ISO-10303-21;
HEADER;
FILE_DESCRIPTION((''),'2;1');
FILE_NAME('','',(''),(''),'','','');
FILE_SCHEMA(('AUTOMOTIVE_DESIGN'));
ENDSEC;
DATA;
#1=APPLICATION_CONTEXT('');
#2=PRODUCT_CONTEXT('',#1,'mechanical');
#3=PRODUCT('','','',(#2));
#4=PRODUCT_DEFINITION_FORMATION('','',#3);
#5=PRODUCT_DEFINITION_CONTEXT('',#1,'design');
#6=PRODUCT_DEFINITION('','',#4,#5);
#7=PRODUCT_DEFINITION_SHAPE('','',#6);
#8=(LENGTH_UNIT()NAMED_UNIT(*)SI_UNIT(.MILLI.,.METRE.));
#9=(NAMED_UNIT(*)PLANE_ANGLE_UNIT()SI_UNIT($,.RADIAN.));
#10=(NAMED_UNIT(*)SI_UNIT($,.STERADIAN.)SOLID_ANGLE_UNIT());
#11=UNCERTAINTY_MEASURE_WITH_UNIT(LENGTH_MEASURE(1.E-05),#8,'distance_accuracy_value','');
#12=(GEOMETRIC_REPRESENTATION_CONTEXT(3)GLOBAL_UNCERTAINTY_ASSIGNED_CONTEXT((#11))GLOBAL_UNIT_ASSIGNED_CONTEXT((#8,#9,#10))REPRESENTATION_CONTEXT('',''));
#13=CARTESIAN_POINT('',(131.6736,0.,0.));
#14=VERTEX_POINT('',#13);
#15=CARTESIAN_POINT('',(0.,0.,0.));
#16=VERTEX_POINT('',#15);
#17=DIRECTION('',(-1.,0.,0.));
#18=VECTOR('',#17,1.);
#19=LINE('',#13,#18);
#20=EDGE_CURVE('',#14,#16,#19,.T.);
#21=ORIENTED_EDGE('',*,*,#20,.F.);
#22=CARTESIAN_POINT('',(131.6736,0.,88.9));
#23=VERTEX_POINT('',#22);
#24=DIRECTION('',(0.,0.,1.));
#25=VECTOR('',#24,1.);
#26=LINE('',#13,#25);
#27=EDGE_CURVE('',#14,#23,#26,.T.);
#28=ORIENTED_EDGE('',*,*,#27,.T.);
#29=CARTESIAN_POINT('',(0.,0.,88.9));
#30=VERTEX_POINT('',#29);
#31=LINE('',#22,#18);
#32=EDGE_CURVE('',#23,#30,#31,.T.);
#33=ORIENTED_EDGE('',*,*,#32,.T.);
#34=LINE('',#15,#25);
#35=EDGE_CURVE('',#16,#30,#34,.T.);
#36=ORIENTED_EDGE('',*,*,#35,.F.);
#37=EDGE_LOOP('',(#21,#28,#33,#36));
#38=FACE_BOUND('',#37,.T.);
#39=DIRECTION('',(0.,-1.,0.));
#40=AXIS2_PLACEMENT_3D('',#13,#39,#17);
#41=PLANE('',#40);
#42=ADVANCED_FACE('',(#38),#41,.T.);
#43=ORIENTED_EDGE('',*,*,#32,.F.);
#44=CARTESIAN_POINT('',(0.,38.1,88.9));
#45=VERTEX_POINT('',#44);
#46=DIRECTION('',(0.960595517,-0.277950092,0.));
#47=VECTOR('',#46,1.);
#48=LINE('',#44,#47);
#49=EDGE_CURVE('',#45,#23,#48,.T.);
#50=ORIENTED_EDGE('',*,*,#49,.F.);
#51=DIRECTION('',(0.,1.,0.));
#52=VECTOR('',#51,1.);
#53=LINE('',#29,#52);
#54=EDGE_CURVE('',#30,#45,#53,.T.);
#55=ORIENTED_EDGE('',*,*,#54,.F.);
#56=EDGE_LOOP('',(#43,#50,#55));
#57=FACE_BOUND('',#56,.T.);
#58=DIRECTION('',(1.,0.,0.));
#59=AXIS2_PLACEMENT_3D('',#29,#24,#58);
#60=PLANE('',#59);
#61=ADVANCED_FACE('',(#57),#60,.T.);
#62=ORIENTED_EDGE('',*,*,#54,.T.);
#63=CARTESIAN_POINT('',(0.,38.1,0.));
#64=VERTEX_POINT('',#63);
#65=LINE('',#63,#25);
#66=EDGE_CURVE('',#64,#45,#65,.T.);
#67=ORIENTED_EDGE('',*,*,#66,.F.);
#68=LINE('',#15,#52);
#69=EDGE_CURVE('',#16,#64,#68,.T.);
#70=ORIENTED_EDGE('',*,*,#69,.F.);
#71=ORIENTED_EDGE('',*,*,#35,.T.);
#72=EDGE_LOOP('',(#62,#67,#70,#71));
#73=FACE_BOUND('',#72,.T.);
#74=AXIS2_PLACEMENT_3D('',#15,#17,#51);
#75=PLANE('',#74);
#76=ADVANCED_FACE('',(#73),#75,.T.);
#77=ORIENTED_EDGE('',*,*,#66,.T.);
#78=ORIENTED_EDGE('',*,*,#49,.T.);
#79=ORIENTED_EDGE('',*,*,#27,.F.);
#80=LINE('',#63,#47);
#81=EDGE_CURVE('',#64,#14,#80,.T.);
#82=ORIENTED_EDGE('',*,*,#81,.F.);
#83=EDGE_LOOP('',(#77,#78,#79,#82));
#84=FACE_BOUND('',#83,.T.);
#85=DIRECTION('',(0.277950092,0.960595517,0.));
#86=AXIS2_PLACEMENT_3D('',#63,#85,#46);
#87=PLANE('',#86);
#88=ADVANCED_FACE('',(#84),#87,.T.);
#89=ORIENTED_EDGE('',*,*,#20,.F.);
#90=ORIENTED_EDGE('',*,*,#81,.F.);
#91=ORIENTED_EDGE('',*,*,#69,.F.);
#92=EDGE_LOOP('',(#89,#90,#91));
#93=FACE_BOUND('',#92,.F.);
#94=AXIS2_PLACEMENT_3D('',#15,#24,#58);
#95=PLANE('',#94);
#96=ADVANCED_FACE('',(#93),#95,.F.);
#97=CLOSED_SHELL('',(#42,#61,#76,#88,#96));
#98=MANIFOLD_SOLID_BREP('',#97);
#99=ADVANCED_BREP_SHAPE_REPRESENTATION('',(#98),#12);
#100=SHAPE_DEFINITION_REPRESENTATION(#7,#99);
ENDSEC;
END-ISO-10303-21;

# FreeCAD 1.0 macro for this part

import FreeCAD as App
import Part
import Sketcher
Q = App.Units.Quantity

doc = App.newDocument("Part")
body = doc.addObject("PartDesign::Body", "Body")

# Sketch on XY plane
sketch1 = body.newObject("Sketcher::SketchObject", "Sketch")
sketch1.AttachmentSupport = (doc.getObject("XY_Plane"), [""])
sketch1.MapMode = "FlatFace"
sketch1.addGeometry(Part.LineSegment(App.Vector(0, 38, 0), App.Vector(0, 0, 0)), False)
sketch1.addGeometry(Part.LineSegment(App.Vector(0, 0, 0), App.Vector(132, 0, 0)), False)
sketch1.addGeometry(Part.LineSegment(App.Vector(132, 0, 0), App.Vector(0, 38, 0)), False)
sketch1.addConstraint(Sketcher.Constraint("Coincident", 0, 2, 1, 1))
sketch1.addConstraint(Sketcher.Constraint("Coincident", 1, 2, 2, 1))
sketch1.addConstraint(Sketcher.Constraint("Coincident", 2, 2, 0, 1))
sketch1.addConstraint(Sketcher.Constraint("Vertical", 0))
sketch1.addConstraint(Sketcher.Constraint("Horizontal", 1))
sketch1.addConstraint(Sketcher.Constraint("Coincident", 0, 2, -1, 1))
sketch1.addConstraint(Sketcher.Constraint("DistanceY", 0, 2, 0, 1, Q("1.5 in")))
sketch1.addConstraint(Sketcher.Constraint("DistanceX", 1, 1, 1, 2, Q("5.184 in")))
pad1 = body.newObject("PartDesign::Pad", "Pad")
pad1.Profile = sketch1
pad1.Length = Q("3.5 in")

doc.recompute()
